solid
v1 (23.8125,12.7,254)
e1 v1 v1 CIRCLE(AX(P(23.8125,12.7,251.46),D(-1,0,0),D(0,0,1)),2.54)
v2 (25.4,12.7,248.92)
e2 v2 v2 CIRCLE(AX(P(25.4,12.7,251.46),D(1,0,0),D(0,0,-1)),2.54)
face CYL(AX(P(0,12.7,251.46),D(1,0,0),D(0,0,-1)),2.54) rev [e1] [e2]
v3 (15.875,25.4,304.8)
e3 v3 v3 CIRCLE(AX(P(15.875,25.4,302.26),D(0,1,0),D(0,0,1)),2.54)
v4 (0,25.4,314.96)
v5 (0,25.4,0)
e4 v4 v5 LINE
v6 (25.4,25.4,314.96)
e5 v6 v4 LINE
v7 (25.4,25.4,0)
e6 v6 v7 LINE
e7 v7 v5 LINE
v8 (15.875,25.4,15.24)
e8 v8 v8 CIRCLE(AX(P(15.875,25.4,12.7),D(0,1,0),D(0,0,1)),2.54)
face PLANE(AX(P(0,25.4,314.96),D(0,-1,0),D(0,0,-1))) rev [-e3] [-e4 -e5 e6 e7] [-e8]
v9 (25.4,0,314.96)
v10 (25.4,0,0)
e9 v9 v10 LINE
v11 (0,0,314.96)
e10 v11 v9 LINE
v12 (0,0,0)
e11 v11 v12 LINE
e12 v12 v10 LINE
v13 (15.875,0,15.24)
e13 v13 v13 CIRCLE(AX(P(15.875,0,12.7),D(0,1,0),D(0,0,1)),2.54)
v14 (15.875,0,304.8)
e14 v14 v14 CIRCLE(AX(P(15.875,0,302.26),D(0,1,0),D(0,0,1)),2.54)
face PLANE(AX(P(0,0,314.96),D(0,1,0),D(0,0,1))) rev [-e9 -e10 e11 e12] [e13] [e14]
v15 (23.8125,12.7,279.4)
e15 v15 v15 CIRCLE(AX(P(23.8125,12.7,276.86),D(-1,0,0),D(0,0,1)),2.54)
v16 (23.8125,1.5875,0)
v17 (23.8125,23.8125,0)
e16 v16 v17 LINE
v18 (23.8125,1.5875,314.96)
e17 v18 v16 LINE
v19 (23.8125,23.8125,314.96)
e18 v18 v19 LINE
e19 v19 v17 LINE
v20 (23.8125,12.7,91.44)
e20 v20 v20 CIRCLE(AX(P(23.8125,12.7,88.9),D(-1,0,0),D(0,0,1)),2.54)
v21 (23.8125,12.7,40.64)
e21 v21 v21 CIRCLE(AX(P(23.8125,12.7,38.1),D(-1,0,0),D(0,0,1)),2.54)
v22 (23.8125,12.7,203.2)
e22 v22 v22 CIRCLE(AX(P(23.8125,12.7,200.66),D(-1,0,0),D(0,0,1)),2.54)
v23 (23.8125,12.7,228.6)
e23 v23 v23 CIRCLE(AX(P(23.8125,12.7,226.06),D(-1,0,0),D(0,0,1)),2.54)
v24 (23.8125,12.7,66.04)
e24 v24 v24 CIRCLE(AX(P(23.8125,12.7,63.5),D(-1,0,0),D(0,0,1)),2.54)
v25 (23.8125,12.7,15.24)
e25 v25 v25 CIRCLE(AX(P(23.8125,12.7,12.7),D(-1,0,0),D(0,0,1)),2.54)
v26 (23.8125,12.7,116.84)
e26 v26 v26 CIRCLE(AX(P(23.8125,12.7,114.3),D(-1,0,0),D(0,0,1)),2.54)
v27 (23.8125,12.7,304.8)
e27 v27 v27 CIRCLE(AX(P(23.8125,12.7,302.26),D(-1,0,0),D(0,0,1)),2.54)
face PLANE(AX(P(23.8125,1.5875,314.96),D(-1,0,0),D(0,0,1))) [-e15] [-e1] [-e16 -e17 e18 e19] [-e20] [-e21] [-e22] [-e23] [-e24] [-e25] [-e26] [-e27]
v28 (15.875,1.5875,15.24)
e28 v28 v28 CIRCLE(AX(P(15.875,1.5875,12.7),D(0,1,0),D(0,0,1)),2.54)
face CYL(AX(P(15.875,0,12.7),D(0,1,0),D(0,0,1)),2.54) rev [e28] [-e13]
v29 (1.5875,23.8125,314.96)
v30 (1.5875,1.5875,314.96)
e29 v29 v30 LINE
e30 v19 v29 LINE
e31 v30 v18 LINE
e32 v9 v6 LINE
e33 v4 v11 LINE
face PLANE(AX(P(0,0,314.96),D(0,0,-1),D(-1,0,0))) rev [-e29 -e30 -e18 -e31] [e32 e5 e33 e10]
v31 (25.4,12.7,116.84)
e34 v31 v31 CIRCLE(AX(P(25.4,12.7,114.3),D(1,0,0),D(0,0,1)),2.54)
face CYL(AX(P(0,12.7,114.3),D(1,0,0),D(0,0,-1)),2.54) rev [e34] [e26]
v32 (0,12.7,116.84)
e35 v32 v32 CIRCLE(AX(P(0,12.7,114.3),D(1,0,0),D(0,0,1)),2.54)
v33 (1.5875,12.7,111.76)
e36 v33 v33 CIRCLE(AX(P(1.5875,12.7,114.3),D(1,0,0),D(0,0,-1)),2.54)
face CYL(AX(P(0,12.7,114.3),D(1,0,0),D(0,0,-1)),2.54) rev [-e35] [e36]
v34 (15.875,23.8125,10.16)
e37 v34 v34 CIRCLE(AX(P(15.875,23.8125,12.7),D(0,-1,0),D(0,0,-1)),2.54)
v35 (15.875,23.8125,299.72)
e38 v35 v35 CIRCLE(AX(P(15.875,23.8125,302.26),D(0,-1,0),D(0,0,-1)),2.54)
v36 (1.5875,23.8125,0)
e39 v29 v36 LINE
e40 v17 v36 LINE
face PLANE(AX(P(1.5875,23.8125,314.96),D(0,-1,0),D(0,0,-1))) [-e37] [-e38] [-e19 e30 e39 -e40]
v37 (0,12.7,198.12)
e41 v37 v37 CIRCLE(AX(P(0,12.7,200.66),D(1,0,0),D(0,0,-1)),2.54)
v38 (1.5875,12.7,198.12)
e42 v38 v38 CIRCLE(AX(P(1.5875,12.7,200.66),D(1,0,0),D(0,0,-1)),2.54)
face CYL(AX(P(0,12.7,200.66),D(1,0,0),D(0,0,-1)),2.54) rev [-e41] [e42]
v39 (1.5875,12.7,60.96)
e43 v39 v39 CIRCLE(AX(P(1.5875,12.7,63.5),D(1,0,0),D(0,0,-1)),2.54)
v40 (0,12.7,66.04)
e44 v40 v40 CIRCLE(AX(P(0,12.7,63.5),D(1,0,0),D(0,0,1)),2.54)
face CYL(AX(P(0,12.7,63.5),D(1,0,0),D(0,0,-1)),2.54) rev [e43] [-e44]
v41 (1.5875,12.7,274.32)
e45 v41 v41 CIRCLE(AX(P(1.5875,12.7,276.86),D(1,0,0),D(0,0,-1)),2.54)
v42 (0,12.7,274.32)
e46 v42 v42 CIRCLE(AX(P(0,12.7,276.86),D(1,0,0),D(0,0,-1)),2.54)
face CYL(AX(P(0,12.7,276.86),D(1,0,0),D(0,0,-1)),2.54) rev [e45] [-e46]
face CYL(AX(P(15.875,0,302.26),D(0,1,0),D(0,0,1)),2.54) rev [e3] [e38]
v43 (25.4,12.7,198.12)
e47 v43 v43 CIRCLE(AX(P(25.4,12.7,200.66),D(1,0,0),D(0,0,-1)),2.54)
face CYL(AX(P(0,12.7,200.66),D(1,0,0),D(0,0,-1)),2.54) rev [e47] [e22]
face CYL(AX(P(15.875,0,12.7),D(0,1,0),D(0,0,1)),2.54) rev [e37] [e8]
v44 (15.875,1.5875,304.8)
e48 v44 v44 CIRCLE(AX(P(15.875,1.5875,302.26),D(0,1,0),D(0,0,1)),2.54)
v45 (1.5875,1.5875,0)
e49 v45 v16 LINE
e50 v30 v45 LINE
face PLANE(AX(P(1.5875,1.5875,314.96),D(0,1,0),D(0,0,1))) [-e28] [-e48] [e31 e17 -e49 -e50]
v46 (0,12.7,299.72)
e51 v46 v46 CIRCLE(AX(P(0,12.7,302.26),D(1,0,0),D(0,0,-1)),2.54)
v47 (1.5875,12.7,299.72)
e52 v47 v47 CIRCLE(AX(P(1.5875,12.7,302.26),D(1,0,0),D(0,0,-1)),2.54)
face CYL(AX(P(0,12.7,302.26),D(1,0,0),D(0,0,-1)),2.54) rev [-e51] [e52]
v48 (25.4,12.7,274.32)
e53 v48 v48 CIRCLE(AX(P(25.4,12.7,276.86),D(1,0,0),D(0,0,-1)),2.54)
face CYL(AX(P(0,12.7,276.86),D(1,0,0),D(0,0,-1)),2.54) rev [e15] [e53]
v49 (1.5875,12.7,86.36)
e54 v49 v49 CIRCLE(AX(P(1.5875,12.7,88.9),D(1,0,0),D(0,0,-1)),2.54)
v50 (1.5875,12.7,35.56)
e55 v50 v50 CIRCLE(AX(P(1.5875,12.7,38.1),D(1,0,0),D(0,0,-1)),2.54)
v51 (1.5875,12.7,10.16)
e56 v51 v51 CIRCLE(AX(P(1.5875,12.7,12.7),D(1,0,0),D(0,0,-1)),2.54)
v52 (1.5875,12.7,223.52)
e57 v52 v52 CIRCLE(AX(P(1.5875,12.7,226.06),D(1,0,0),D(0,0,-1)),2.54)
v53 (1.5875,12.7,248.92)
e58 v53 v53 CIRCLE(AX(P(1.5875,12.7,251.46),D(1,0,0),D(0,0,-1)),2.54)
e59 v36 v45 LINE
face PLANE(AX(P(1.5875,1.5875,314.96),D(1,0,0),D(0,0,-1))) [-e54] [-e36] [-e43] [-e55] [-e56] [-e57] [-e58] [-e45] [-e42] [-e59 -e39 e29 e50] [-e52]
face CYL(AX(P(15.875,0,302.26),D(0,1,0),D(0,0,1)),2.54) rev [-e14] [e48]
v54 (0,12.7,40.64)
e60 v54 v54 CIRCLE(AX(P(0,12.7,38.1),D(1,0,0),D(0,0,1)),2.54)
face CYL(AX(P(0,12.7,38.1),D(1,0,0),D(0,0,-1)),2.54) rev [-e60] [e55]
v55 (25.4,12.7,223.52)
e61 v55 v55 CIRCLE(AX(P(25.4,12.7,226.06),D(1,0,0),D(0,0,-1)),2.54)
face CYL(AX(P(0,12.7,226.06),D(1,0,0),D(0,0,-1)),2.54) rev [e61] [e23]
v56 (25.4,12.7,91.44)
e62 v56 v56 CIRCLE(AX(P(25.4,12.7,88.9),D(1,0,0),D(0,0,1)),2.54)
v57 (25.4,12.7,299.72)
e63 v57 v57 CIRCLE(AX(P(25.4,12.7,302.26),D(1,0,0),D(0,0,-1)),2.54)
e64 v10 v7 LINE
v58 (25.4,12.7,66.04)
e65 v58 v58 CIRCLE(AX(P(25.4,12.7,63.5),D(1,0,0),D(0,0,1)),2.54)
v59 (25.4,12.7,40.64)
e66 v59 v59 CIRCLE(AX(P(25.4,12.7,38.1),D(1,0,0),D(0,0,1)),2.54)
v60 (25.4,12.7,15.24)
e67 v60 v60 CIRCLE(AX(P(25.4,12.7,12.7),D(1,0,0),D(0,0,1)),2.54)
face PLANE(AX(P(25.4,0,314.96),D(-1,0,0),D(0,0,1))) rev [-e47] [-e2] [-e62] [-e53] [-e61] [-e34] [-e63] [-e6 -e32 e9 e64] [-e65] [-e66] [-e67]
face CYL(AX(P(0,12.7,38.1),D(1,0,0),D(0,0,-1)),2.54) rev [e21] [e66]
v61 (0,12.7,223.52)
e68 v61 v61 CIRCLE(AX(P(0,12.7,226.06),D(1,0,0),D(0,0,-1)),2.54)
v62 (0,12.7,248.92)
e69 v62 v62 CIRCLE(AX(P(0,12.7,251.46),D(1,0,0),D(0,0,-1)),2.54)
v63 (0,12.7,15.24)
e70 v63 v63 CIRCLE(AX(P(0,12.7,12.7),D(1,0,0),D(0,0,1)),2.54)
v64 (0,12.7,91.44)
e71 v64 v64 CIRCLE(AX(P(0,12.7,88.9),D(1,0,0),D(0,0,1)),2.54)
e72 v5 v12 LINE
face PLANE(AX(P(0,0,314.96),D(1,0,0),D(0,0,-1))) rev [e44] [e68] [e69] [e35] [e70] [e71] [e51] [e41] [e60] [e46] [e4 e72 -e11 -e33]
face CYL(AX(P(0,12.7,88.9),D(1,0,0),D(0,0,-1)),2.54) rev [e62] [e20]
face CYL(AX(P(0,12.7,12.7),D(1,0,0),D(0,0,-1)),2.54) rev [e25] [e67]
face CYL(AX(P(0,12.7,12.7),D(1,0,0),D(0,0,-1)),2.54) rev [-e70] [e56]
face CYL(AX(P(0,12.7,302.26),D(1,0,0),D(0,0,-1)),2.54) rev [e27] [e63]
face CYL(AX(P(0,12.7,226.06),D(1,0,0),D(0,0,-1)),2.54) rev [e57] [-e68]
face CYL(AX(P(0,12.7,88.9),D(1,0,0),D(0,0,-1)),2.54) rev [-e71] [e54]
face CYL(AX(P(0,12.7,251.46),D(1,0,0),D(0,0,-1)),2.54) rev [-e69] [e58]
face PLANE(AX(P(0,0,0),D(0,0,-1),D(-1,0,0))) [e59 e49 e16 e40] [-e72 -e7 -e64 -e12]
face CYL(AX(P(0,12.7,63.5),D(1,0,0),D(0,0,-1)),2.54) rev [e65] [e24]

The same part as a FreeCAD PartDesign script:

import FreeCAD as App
import Part
import Sketcher

V = App.Vector
Q = App.Units.Quantity

doc = App.newDocument("Part")
body = doc.addObject("PartDesign::Body", "Body")

sketch1 = body.newObject("Sketcher::SketchObject", "Sketch")
sketch1.AttachmentSupport = (doc.getObject("XY_Plane"), [""])
sketch1.MapMode = "FlatFace"
sketch1.addGeometry([
    Part.LineSegment(V(0, 25, 0), V(0, 0, 0)),
    Part.LineSegment(V(0, 0, 0), V(25, 0, 0)),
    Part.LineSegment(V(25, 0, 0), V(25, 25, 0)),
    Part.LineSegment(V(25, 25, 0), V(0, 25, 0)),
    Part.LineSegment(V(24, 2, 0), V(2, 2, 0)),
    Part.LineSegment(V(2, 2, 0), V(2, 24, 0)),
    Part.LineSegment(V(2, 24, 0), V(24, 24, 0)),
    Part.LineSegment(V(24, 24, 0), V(24, 2, 0)),
], False)
sketch1.addConstraint([
    Sketcher.Constraint("Coincident", 0, 2, 1, 1),
    Sketcher.Constraint("Coincident", 1, 2, 2, 1),
    Sketcher.Constraint("Coincident", 2, 2, 3, 1),
    Sketcher.Constraint("Coincident", 3, 2, 0, 1),
    Sketcher.Constraint("Coincident", 4, 2, 5, 1),
    Sketcher.Constraint("Coincident", 5, 2, 6, 1),
    Sketcher.Constraint("Coincident", 6, 2, 7, 1),
    Sketcher.Constraint("Coincident", 7, 2, 4, 1),
    Sketcher.Constraint("Vertical", 0),
    Sketcher.Constraint("Horizontal", 1),
    Sketcher.Constraint("Vertical", 2),
    Sketcher.Constraint("Horizontal", 3),
    Sketcher.Constraint("Horizontal", 4),
    Sketcher.Constraint("Vertical", 5),
    Sketcher.Constraint("Horizontal", 6),
    Sketcher.Constraint("Vertical", 7),
    Sketcher.Constraint("Coincident", 0, 2, -1, 1),
    Sketcher.Constraint("Equal", 3, 0),
    Sketcher.Constraint("Equal", 6, 5),
    Sketcher.Constraint("DistanceX", 1, 1, 1, 2, Q("1 in")),
    Sketcher.Constraint("DistanceX", 4, 2, 4, 1, Q("0.875 in")),
    Sketcher.Constraint("DistanceX", -1, 1, 4, 2, Q("0.0625 in")),
    Sketcher.Constraint("DistanceY", -1, 1, 4, 2, Q("0.0625 in")),
])
pad1 = body.newObject("PartDesign::Pad", "Pad")
pad1.Profile = sketch1
pad1.Length = Q("12.4 in")

sketch2 = body.newObject("Sketcher::SketchObject", "Sketch001")
sketch2.AttachmentSupport = (doc.getObject("XZ_Plane"), [""])
sketch2.MapMode = "FlatFace"
sketch2.AttachmentOffset = App.Placement(V(0, 0, -1 * 25.4), App.Rotation())
sketch2.addGeometry([
    Part.Circle(V(15.9, 302.3, 0), V(0, 0, 1), 2.5),
    Part.Circle(V(15.9, 12.7, 0), V(0, 0, 1), 2.5),
], False)
sketch2.addConstraint([
    Sketcher.Constraint("Equal", 0, 1),
    Sketcher.Constraint("Vertical", 0, 3, 1, 3),
    Sketcher.Constraint("Diameter", 0, Q("0.2 in")),
    Sketcher.Constraint("DistanceY", -1, 1, 0, 3, Q("11.9 in")),
    Sketcher.Constraint("DistanceY", -1, 1, 1, 3, Q("0.5 in")),
    Sketcher.Constraint("DistanceX", -1, 1, 0, 3, Q("0.625 in")),
])
pocket1 = body.newObject("PartDesign::Pocket", "Pocket")
pocket1.Profile = sketch2
pocket1.Type = "ThroughAll"
pocket1.Reversed = True

sketch3 = body.newObject("Sketcher::SketchObject", "Sketch002")
sketch3.AttachmentSupport = (doc.getObject("YZ_Plane"), [""])
sketch3.MapMode = "FlatFace"
sketch3.AttachmentOffset = App.Placement(V(0, 0, 1 * 25.4), App.Rotation())
sketch3.addGeometry([
    Part.Circle(V(12.7, 302.3, 0), V(0, 0, 1), 2.5),
    Part.Circle(V(12.7, 276.9, 0), V(0, 0, 1), 2.5),
    Part.Circle(V(12.7, 251.5, 0), V(0, 0, 1), 2.5),
    Part.Circle(V(12.7, 226.1, 0), V(0, 0, 1), 2.5),
    Part.Circle(V(12.7, 200.7, 0), V(0, 0, 1), 2.5),
    Part.Circle(V(12.7, 114.3, 0), V(0, 0, 1), 2.5),
    Part.Circle(V(12.7, 88.9, 0), V(0, 0, 1), 2.5),
    Part.Circle(V(12.7, 63.5, 0), V(0, 0, 1), 2.5),
    Part.Circle(V(12.7, 38.1, 0), V(0, 0, 1), 2.5),
    Part.Circle(V(12.7, 12.7, 0), V(0, 0, 1), 2.5),
], False)
sketch3.addConstraint([
    Sketcher.Constraint("Equal", 0, 1),
    Sketcher.Constraint("Equal", 1, 2),
    Sketcher.Constraint("Equal", 2, 3),
    Sketcher.Constraint("Equal", 3, 4),
    Sketcher.Constraint("Equal", 4, 5),
    Sketcher.Constraint("Equal", 5, 6),
    Sketcher.Constraint("Equal", 6, 7),
    Sketcher.Constraint("Equal", 7, 8),
    Sketcher.Constraint("Equal", 8, 9),
    Sketcher.Constraint("Vertical", 0, 3, 1, 3),
    Sketcher.Constraint("Vertical", 1, 3, 2, 3),
    Sketcher.Constraint("Vertical", 2, 3, 3, 3),
    Sketcher.Constraint("Vertical", 3, 3, 4, 3),
    Sketcher.Constraint("Vertical", 4, 3, 5, 3),
    Sketcher.Constraint("Vertical", 5, 3, 6, 3),
    Sketcher.Constraint("Vertical", 6, 3, 7, 3),
    Sketcher.Constraint("Vertical", 7, 3, 8, 3),
    Sketcher.Constraint("Vertical", 8, 3, 9, 3),
    Sketcher.Constraint("Diameter", 0, Q("0.2 in")),
    Sketcher.Constraint("DistanceY", 1, 3, 0, 3, Q("1 in")),
    Sketcher.Constraint("DistanceY", 2, 3, 1, 3, Q("1 in")),
    Sketcher.Constraint("DistanceY", 3, 3, 2, 3, Q("1 in")),
    Sketcher.Constraint("DistanceY", 4, 3, 3, 3, Q("1 in")),
    Sketcher.Constraint("DistanceY", 6, 3, 5, 3, Q("1 in")),
    Sketcher.Constraint("DistanceY", 7, 3, 6, 3, Q("1 in")),
    Sketcher.Constraint("DistanceY", 8, 3, 7, 3, Q("1 in")),
    Sketcher.Constraint("DistanceY", 9, 3, 8, 3, Q("1 in")),
    Sketcher.Constraint("DistanceX", -1, 1, 0, 3, Q("0.5 in")),
    Sketcher.Constraint("DistanceY", -1, 1, 0, 3, Q("11.9 in")),
    Sketcher.Constraint("DistanceY", -1, 1, 5, 3, Q("4.5 in")),
])
pocket2 = body.newObject("PartDesign::Pocket", "Pocket001")
pocket2.Profile = sketch3
pocket2.Type = "ThroughAll"

doc.recompute()
